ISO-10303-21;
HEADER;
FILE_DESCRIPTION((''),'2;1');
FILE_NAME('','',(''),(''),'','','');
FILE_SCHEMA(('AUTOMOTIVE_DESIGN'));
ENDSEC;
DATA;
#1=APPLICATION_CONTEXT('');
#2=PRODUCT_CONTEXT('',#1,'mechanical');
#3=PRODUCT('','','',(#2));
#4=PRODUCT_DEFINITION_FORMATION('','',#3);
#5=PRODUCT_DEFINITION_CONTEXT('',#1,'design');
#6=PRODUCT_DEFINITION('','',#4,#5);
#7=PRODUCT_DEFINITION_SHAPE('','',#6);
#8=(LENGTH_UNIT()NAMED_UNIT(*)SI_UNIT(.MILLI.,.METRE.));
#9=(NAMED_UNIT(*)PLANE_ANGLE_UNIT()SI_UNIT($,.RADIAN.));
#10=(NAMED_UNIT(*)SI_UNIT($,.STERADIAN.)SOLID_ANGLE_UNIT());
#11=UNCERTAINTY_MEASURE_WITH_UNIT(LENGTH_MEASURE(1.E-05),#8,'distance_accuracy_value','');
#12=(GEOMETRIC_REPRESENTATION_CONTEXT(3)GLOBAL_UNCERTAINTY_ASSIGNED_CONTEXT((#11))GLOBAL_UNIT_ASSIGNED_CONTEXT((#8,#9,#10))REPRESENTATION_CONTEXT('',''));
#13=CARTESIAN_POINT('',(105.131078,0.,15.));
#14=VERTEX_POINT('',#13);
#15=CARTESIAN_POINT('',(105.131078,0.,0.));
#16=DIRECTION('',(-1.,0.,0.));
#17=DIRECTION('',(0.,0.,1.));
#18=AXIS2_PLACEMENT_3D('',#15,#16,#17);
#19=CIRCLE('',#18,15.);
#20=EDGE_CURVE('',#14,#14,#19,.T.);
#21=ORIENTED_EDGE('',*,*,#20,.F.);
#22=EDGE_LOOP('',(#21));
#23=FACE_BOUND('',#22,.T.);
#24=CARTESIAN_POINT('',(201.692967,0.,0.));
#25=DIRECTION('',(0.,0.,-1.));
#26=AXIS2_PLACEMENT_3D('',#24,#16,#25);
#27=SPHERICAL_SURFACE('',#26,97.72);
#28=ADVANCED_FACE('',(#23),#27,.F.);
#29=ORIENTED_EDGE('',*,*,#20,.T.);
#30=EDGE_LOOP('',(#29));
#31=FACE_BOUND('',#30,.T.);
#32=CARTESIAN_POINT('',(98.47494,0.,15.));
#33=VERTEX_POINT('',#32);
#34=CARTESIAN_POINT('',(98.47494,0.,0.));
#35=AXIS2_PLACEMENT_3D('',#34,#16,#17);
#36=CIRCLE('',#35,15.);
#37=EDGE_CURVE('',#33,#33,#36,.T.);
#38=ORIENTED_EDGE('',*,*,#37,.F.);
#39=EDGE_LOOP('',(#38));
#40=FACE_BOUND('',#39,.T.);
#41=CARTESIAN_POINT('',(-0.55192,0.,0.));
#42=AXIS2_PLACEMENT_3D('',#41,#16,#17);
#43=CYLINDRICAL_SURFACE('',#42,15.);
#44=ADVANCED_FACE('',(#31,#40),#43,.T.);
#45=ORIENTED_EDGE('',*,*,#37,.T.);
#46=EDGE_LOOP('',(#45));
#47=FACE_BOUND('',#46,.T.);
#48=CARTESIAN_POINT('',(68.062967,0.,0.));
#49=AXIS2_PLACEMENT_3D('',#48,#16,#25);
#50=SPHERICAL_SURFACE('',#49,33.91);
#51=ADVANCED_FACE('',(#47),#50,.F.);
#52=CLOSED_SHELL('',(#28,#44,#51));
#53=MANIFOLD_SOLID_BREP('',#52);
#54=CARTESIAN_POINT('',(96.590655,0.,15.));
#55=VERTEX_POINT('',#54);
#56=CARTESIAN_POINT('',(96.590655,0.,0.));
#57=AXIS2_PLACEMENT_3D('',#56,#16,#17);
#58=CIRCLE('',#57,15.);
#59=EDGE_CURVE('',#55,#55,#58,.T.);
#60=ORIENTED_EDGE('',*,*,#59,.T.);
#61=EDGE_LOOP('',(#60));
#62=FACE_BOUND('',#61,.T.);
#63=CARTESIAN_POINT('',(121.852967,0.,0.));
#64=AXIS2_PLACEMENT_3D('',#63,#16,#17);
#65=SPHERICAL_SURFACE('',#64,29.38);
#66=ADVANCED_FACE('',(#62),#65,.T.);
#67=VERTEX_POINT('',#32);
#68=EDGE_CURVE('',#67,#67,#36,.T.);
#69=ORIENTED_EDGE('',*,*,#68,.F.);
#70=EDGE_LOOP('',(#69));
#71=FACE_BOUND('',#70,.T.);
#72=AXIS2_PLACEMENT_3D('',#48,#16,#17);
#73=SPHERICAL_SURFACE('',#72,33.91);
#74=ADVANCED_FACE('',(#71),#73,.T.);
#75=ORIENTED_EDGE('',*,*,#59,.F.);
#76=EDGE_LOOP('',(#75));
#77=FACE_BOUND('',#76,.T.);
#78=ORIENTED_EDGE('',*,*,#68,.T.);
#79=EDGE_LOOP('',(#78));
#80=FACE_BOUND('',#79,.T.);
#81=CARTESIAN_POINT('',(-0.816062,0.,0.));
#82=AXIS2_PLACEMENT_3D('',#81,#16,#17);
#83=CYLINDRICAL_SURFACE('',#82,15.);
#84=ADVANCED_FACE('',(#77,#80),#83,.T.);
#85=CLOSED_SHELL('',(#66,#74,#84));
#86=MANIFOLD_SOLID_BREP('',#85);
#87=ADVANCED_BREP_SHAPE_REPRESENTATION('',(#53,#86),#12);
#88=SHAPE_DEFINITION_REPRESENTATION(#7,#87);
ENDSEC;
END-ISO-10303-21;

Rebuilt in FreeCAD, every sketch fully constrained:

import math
import FreeCAD as App
import Part
import Sketcher
Q = App.Units.Quantity

doc = App.newDocument("Part")
body = doc.addObject("PartDesign::Body", "Body")

sketch1 = body.newObject("Sketcher::SketchObject", "Sketch")
sketch1.AttachmentSupport = (doc.getObject("XZ_Plane"), [""])
sketch1.MapMode = "FlatFace"
sketch1.addGeometry(Part.ArcOfCircle(Part.Circle(App.Vector(121.9, 0, 0), App.Vector(0, 0, 1), 29.4), math.radians(-180), math.radians(-149)), False)
sketch1.addGeometry(Part.LineSegment(App.Vector(92.5, 0, 0), App.Vector(102, 0, 0)), False)
sketch1.addGeometry(Part.ArcOfCircle(Part.Circle(App.Vector(68.1, 0, 0), App.Vector(0, 0, 1), 33.9), math.radians(-26), math.radians(0)), False)
sketch1.addGeometry(Part.LineSegment(App.Vector(98.5, -15, 0), App.Vector(96.6, -15, 0)), False)
sketch1.addConstraint(Sketcher.Constraint("Coincident", 0, 1, 1, 1))
sketch1.addConstraint(Sketcher.Constraint("Coincident", 1, 2, 2, 2))
sketch1.addConstraint(Sketcher.Constraint("Coincident", 2, 1, 3, 1))
sketch1.addConstraint(Sketcher.Constraint("Coincident", 3, 2, 0, 2))
sketch1.addConstraint(Sketcher.Constraint("Horizontal", 1))
sketch1.addConstraint(Sketcher.Constraint("Horizontal", 3))
sketch1.addConstraint(Sketcher.Constraint("PointOnObject", 0, 3, -1))
sketch1.addConstraint(Sketcher.Constraint("PointOnObject", 2, 3, -1))
sketch1.addConstraint(Sketcher.Constraint("PointOnObject", 0, 1, -1))
sketch1.addConstraint(Sketcher.Constraint("Radius", 0, Q("29.38 mm")))
sketch1.addConstraint(Sketcher.Constraint("Radius", 2, Q("33.91 mm")))
sketch1.addConstraint(Sketcher.Constraint("DistanceX", 1, 1, 1, 2, Q("9.5 mm")))
sketch1.addConstraint(Sketcher.Constraint("DistanceY", 2, 1, -1, 1, Q("15 mm")))
sketch1.addConstraint(Sketcher.Constraint("DistanceX", -1, 1, 2, 1, Q("98.47494 mm")))
revolution = body.newObject("PartDesign::Revolution", "Revolution")
revolution.Profile = sketch1
revolution.ReferenceAxis = (sketch1, ["H_Axis"])
revolution.Angle = 360
body2 = doc.addObject("PartDesign::Body", "Body001")

sketch2 = body2.newObject("Sketcher::SketchObject", "Sketch001")
sketch2.AttachmentSupport = (doc.getObject("XZ_Plane001"), [""])
sketch2.MapMode = "FlatFace"
sketch2.addGeometry(Part.LineSegment(App.Vector(105.1, -15, 0), App.Vector(98.5, -15, 0)), False)
sketch2.addGeometry(Part.ArcOfCircle(Part.Circle(App.Vector(68.1, 0, 0), App.Vector(0, 0, 1), 33.9), math.radians(-26), math.radians(0)), False)
sketch2.addGeometry(Part.LineSegment(App.Vector(102, 0, 0), App.Vector(104, 0, 0)), False)
sketch2.addGeometry(Part.ArcOfCircle(Part.Circle(App.Vector(201.7, 0, 0), App.Vector(0, 0, 1), 97.7), math.radians(180), math.radians(188.83)), False)
sketch2.addConstraint(Sketcher.Constraint("Coincident", 0, 2, 1, 1))
sketch2.addConstraint(Sketcher.Constraint("Coincident", 1, 2, 2, 1))
sketch2.addConstraint(Sketcher.Constraint("Coincident", 2, 2, 3, 1))
sketch2.addConstraint(Sketcher.Constraint("Coincident", 3, 2, 0, 1))
sketch2.addConstraint(Sketcher.Constraint("Horizontal", 0))
sketch2.addConstraint(Sketcher.Constraint("Horizontal", 2))
sketch2.addConstraint(Sketcher.Constraint("PointOnObject", 1, 3, -1))
sketch2.addConstraint(Sketcher.Constraint("PointOnObject", 3, 3, -1))
sketch2.addConstraint(Sketcher.Constraint("PointOnObject", 1, 2, -1))
sketch2.addConstraint(Sketcher.Constraint("DistanceX", 2, 1, 2, 2, Q("2 mm")))
sketch2.addConstraint(Sketcher.Constraint("Radius", 1, Q("33.91 mm")))
sketch2.addConstraint(Sketcher.Constraint("Radius", 3, Q("97.72 mm")))
sketch2.addConstraint(Sketcher.Constraint("DistanceY", 0, 2, -1, 1, Q("15 mm")))
sketch2.addConstraint(Sketcher.Constraint("DistanceX", -1, 1, 0, 2, Q("98.47494 mm")))
revolution2 = body2.newObject("PartDesign::Revolution", "Revolution001")
revolution2.Profile = sketch2
revolution2.ReferenceAxis = (sketch2, ["H_Axis"])
revolution2.Angle = 360

doc.recompute()
